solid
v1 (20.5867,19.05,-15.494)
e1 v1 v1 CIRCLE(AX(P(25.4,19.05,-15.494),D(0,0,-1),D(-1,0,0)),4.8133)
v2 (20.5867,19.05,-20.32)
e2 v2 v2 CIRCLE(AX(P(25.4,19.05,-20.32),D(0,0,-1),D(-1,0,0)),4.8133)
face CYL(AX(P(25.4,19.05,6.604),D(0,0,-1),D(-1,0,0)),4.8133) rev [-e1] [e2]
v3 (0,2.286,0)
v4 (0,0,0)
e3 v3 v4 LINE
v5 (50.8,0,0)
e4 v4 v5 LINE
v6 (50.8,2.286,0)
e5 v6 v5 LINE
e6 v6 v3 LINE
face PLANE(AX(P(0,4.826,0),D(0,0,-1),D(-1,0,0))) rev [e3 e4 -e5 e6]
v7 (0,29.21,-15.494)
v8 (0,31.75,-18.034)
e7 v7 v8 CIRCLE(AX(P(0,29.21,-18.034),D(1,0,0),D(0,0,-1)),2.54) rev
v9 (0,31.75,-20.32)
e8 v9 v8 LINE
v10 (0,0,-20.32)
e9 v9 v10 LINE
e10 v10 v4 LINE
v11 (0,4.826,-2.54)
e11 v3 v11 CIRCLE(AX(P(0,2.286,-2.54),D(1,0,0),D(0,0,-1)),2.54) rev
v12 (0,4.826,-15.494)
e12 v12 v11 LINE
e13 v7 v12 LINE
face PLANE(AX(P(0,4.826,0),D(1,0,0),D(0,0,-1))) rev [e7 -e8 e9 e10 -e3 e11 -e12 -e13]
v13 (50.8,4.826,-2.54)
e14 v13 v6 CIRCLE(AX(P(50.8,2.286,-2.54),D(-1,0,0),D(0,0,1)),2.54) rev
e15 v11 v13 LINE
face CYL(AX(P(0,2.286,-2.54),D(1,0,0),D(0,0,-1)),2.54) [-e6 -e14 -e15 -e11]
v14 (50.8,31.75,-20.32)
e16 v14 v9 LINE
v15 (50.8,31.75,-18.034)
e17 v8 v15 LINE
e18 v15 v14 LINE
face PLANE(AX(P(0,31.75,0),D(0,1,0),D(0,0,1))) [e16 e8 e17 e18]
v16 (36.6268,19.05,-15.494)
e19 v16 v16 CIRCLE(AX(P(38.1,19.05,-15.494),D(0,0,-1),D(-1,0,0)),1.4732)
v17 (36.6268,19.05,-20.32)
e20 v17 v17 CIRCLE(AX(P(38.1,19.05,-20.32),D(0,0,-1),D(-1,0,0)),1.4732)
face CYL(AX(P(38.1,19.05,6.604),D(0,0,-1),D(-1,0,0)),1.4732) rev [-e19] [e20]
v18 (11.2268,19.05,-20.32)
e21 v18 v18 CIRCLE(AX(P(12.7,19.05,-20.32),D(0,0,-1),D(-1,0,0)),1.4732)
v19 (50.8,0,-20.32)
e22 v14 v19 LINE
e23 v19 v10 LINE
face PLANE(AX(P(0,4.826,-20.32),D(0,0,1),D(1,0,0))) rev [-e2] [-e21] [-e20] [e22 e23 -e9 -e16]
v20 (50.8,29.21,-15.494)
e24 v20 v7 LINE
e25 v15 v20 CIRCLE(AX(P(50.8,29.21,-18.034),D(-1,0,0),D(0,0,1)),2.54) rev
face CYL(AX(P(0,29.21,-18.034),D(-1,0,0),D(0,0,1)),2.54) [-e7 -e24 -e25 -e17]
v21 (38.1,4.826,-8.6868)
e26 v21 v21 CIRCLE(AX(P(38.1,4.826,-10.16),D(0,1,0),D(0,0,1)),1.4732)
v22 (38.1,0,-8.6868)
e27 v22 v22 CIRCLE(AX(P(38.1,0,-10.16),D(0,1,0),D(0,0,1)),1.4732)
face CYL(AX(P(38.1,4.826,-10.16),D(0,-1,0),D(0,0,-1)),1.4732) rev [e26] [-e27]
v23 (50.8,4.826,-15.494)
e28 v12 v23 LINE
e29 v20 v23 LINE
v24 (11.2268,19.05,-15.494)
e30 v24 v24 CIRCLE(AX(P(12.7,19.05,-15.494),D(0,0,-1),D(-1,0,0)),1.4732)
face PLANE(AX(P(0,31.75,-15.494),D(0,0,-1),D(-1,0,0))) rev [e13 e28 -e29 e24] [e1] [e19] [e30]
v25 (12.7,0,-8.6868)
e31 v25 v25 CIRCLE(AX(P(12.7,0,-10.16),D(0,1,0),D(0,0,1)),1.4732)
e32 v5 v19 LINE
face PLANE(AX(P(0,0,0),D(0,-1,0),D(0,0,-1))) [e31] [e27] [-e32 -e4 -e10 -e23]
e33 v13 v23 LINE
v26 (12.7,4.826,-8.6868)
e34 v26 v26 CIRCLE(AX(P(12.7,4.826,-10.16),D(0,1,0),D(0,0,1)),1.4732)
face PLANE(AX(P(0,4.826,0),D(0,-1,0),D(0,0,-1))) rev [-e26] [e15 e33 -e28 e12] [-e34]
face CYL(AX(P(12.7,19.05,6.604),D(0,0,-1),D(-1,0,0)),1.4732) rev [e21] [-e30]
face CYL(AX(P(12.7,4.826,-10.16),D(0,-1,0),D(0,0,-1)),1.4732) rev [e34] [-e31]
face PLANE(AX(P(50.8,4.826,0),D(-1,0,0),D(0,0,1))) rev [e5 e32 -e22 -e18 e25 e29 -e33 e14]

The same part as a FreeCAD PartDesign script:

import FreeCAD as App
import Part
import Sketcher

V = App.Vector
Q = App.Units.Quantity


def edges_at(feature, points):
    """Names of the edges that pass closest to the given points."""
    edges = feature.Shape.Edges
    near = lambda p: min(range(len(edges)), key=lambda i: edges[i].distToShape(Part.Vertex(*p))[0])
    return sorted({f"Edge{near(p) + 1}" for p in points})


def add_polygon(sketch, points):
    """Adds a closed chain of lines whose ends are joined by coincident constraints."""
    first, n = sketch.GeometryCount, len(points)
    for a, b in zip(points, points[1:] + points[:1]):
        sketch.addGeometry(Part.LineSegment(App.Vector(*a, 0), App.Vector(*b, 0)), False)
    for i in range(n):
        sketch.addConstraint(Sketcher.Constraint("Coincident", first + i, 2, first + (i + 1) % n, 1))

doc = App.newDocument("Part")
body = doc.addObject("PartDesign::Body", "Body")

# Sketch on XZ plane
sketch1 = doc.addObject("Sketcher::SketchObject", "Sketch")
body.addObject(sketch1)
sketch1.AttachmentSupport = (doc.XZ_Plane, [""])
sketch1.MapMode = "FlatFace"
add_polygon(sketch1, [(0, -20.3), (0, 0), (50.8, 0), (50.8, -20.3)])  # lines 0-3
sketch1.addGeometry(Part.Circle(V(12.7, -10.2, 0), V(0, 0, 1), 1.5), False)  # 4
sketch1.addGeometry(Part.Circle(V(38.1, -10.2, 0), V(0, 0, 1), 1.5), False)  # 5
sketch1.addConstraint(Sketcher.Constraint("Vertical", 0))
sketch1.addConstraint(Sketcher.Constraint("Horizontal", 1))
sketch1.addConstraint(Sketcher.Constraint("Vertical", 2))
sketch1.addConstraint(Sketcher.Constraint("Horizontal", 3))
sketch1.addConstraint(Sketcher.Constraint("Coincident", 0, 2, -1, 1))
sketch1.addConstraint(Sketcher.Constraint("Equal", 4, 5))
sketch1.addConstraint(Sketcher.Constraint("Horizontal", 4, 3, 5, 3))
sketch1.addConstraint(Sketcher.Constraint("DistanceX", 1, 1, 1, 2, Q("2 in")))
sketch1.addConstraint(Sketcher.Constraint("Diameter", 4, Q("0.116 in")))
sketch1.addConstraint(Sketcher.Constraint("DistanceY", 0, 1, 0, 2, Q("0.8 in")))
sketch1.addConstraint(Sketcher.Constraint("DistanceX", 4, 3, 5, 3, Q("1 in")))
sketch1.addConstraint(Sketcher.Constraint("DistanceX", -1, 1, 4, 3, Q("0.5 in")))
sketch1.addConstraint(Sketcher.Constraint("DistanceY", 4, 3, -1, 1, Q("0.4 in")))
pad1 = doc.addObject("PartDesign::Pad", "Pad")
body.addObject(pad1)
pad1.Profile = sketch1
pad1.Length = Q("0.19 in")
pad1.Reversed = True

# Sketch on XZ plane
sketch2 = doc.addObject("Sketcher::SketchObject", "Sketch001")
body.addObject(sketch2)
sketch2.AttachmentSupport = (doc.XZ_Plane, [""])
sketch2.MapMode = "FlatFace"
sketch2.AttachmentOffset = App.Placement(V(0, 0, -0.19 * 25.4), App.Rotation())
add_polygon(sketch2, [(0, -20.3), (0, -15.5), (50.8, -15.5), (50.8, -20.3)])  # lines 0-3
sketch2.addConstraint(Sketcher.Constraint("Vertical", 0))
sketch2.addConstraint(Sketcher.Constraint("Horizontal", 1))
sketch2.addConstraint(Sketcher.Constraint("Vertical", 2))
sketch2.addConstraint(Sketcher.Constraint("Horizontal", 3))
sketch2.addConstraint(Sketcher.Constraint("PointOnObject", 0, 2, -2))
sketch2.addConstraint(Sketcher.Constraint("DistanceX", 1, 1, 1, 2, Q("2 in")))
sketch2.addConstraint(Sketcher.Constraint("DistanceY", 0, 1, 0, 2, Q("0.19 in")))
sketch2.addConstraint(Sketcher.Constraint("DistanceY", 2, 2, -1, 1, Q("0.8 in")))
pad2 = doc.addObject("PartDesign::Pad", "Pad001")
body.addObject(pad2)
pad2.Profile = sketch2
pad2.Length = Q("1.06 in")
pad2.Reversed = True
doc.recompute()

fillet = doc.addObject("PartDesign::Fillet", "Fillet")
body.addObject(fillet)
fillet.Base = (pad2, edges_at(pad2, [(25.4, 31.75, -15.494), (25.4, 4.826, 0)]))
fillet.Radius = Q("0.1 in")

# Sketch on XY plane
sketch3 = doc.addObject("Sketcher::SketchObject", "Sketch002")
body.addObject(sketch3)
sketch3.AttachmentSupport = (doc.XY_Plane, [""])
sketch3.MapMode = "FlatFace"
sketch3.AttachmentOffset = App.Placement(V(0, 0, -0.8 * 25.4), App.Rotation())
sketch3.addGeometry(Part.Circle(V(38.1, 19.1, 0), V(0, 0, 1), 1.5), False)
sketch3.addGeometry(Part.Circle(V(12.7, 19.1, 0), V(0, 0, 1), 1.5), False)
sketch3.addGeometry(Part.Circle(V(25.4, 19.1, 0), V(0, 0, 1), 4.8), False)
sketch3.addConstraint(Sketcher.Constraint("Equal", 0, 1))
sketch3.addConstraint(Sketcher.Constraint("Horizontal", 0, 3, 1, 3))
sketch3.addConstraint(Sketcher.Constraint("Horizontal", 1, 3, 2, 3))
sketch3.addConstraint(Sketcher.Constraint("Diameter", 0, Q("0.116 in")))
sketch3.addConstraint(Sketcher.Constraint("Diameter", 2, Q("0.379 in")))
sketch3.addConstraint(Sketcher.Constraint("DistanceX", -1, 1, 2, 3, Q("1 in")))
sketch3.addConstraint(Sketcher.Constraint("DistanceX", 1, 3, 0, 3, Q("1 in")))
sketch3.addConstraint(Sketcher.Constraint("DistanceX", -1, 1, 0, 3, Q("1.5 in")))
sketch3.addConstraint(Sketcher.Constraint("DistanceY", -1, 1, 0, 3, Q("0.75 in")))
pocket1 = doc.addObject("PartDesign::Pocket", "Pocket")
body.addObject(pocket1)
pocket1.Profile = sketch3
pocket1.Length = Q("1.06 in")
pocket1.Reversed = True

doc.recompute()
